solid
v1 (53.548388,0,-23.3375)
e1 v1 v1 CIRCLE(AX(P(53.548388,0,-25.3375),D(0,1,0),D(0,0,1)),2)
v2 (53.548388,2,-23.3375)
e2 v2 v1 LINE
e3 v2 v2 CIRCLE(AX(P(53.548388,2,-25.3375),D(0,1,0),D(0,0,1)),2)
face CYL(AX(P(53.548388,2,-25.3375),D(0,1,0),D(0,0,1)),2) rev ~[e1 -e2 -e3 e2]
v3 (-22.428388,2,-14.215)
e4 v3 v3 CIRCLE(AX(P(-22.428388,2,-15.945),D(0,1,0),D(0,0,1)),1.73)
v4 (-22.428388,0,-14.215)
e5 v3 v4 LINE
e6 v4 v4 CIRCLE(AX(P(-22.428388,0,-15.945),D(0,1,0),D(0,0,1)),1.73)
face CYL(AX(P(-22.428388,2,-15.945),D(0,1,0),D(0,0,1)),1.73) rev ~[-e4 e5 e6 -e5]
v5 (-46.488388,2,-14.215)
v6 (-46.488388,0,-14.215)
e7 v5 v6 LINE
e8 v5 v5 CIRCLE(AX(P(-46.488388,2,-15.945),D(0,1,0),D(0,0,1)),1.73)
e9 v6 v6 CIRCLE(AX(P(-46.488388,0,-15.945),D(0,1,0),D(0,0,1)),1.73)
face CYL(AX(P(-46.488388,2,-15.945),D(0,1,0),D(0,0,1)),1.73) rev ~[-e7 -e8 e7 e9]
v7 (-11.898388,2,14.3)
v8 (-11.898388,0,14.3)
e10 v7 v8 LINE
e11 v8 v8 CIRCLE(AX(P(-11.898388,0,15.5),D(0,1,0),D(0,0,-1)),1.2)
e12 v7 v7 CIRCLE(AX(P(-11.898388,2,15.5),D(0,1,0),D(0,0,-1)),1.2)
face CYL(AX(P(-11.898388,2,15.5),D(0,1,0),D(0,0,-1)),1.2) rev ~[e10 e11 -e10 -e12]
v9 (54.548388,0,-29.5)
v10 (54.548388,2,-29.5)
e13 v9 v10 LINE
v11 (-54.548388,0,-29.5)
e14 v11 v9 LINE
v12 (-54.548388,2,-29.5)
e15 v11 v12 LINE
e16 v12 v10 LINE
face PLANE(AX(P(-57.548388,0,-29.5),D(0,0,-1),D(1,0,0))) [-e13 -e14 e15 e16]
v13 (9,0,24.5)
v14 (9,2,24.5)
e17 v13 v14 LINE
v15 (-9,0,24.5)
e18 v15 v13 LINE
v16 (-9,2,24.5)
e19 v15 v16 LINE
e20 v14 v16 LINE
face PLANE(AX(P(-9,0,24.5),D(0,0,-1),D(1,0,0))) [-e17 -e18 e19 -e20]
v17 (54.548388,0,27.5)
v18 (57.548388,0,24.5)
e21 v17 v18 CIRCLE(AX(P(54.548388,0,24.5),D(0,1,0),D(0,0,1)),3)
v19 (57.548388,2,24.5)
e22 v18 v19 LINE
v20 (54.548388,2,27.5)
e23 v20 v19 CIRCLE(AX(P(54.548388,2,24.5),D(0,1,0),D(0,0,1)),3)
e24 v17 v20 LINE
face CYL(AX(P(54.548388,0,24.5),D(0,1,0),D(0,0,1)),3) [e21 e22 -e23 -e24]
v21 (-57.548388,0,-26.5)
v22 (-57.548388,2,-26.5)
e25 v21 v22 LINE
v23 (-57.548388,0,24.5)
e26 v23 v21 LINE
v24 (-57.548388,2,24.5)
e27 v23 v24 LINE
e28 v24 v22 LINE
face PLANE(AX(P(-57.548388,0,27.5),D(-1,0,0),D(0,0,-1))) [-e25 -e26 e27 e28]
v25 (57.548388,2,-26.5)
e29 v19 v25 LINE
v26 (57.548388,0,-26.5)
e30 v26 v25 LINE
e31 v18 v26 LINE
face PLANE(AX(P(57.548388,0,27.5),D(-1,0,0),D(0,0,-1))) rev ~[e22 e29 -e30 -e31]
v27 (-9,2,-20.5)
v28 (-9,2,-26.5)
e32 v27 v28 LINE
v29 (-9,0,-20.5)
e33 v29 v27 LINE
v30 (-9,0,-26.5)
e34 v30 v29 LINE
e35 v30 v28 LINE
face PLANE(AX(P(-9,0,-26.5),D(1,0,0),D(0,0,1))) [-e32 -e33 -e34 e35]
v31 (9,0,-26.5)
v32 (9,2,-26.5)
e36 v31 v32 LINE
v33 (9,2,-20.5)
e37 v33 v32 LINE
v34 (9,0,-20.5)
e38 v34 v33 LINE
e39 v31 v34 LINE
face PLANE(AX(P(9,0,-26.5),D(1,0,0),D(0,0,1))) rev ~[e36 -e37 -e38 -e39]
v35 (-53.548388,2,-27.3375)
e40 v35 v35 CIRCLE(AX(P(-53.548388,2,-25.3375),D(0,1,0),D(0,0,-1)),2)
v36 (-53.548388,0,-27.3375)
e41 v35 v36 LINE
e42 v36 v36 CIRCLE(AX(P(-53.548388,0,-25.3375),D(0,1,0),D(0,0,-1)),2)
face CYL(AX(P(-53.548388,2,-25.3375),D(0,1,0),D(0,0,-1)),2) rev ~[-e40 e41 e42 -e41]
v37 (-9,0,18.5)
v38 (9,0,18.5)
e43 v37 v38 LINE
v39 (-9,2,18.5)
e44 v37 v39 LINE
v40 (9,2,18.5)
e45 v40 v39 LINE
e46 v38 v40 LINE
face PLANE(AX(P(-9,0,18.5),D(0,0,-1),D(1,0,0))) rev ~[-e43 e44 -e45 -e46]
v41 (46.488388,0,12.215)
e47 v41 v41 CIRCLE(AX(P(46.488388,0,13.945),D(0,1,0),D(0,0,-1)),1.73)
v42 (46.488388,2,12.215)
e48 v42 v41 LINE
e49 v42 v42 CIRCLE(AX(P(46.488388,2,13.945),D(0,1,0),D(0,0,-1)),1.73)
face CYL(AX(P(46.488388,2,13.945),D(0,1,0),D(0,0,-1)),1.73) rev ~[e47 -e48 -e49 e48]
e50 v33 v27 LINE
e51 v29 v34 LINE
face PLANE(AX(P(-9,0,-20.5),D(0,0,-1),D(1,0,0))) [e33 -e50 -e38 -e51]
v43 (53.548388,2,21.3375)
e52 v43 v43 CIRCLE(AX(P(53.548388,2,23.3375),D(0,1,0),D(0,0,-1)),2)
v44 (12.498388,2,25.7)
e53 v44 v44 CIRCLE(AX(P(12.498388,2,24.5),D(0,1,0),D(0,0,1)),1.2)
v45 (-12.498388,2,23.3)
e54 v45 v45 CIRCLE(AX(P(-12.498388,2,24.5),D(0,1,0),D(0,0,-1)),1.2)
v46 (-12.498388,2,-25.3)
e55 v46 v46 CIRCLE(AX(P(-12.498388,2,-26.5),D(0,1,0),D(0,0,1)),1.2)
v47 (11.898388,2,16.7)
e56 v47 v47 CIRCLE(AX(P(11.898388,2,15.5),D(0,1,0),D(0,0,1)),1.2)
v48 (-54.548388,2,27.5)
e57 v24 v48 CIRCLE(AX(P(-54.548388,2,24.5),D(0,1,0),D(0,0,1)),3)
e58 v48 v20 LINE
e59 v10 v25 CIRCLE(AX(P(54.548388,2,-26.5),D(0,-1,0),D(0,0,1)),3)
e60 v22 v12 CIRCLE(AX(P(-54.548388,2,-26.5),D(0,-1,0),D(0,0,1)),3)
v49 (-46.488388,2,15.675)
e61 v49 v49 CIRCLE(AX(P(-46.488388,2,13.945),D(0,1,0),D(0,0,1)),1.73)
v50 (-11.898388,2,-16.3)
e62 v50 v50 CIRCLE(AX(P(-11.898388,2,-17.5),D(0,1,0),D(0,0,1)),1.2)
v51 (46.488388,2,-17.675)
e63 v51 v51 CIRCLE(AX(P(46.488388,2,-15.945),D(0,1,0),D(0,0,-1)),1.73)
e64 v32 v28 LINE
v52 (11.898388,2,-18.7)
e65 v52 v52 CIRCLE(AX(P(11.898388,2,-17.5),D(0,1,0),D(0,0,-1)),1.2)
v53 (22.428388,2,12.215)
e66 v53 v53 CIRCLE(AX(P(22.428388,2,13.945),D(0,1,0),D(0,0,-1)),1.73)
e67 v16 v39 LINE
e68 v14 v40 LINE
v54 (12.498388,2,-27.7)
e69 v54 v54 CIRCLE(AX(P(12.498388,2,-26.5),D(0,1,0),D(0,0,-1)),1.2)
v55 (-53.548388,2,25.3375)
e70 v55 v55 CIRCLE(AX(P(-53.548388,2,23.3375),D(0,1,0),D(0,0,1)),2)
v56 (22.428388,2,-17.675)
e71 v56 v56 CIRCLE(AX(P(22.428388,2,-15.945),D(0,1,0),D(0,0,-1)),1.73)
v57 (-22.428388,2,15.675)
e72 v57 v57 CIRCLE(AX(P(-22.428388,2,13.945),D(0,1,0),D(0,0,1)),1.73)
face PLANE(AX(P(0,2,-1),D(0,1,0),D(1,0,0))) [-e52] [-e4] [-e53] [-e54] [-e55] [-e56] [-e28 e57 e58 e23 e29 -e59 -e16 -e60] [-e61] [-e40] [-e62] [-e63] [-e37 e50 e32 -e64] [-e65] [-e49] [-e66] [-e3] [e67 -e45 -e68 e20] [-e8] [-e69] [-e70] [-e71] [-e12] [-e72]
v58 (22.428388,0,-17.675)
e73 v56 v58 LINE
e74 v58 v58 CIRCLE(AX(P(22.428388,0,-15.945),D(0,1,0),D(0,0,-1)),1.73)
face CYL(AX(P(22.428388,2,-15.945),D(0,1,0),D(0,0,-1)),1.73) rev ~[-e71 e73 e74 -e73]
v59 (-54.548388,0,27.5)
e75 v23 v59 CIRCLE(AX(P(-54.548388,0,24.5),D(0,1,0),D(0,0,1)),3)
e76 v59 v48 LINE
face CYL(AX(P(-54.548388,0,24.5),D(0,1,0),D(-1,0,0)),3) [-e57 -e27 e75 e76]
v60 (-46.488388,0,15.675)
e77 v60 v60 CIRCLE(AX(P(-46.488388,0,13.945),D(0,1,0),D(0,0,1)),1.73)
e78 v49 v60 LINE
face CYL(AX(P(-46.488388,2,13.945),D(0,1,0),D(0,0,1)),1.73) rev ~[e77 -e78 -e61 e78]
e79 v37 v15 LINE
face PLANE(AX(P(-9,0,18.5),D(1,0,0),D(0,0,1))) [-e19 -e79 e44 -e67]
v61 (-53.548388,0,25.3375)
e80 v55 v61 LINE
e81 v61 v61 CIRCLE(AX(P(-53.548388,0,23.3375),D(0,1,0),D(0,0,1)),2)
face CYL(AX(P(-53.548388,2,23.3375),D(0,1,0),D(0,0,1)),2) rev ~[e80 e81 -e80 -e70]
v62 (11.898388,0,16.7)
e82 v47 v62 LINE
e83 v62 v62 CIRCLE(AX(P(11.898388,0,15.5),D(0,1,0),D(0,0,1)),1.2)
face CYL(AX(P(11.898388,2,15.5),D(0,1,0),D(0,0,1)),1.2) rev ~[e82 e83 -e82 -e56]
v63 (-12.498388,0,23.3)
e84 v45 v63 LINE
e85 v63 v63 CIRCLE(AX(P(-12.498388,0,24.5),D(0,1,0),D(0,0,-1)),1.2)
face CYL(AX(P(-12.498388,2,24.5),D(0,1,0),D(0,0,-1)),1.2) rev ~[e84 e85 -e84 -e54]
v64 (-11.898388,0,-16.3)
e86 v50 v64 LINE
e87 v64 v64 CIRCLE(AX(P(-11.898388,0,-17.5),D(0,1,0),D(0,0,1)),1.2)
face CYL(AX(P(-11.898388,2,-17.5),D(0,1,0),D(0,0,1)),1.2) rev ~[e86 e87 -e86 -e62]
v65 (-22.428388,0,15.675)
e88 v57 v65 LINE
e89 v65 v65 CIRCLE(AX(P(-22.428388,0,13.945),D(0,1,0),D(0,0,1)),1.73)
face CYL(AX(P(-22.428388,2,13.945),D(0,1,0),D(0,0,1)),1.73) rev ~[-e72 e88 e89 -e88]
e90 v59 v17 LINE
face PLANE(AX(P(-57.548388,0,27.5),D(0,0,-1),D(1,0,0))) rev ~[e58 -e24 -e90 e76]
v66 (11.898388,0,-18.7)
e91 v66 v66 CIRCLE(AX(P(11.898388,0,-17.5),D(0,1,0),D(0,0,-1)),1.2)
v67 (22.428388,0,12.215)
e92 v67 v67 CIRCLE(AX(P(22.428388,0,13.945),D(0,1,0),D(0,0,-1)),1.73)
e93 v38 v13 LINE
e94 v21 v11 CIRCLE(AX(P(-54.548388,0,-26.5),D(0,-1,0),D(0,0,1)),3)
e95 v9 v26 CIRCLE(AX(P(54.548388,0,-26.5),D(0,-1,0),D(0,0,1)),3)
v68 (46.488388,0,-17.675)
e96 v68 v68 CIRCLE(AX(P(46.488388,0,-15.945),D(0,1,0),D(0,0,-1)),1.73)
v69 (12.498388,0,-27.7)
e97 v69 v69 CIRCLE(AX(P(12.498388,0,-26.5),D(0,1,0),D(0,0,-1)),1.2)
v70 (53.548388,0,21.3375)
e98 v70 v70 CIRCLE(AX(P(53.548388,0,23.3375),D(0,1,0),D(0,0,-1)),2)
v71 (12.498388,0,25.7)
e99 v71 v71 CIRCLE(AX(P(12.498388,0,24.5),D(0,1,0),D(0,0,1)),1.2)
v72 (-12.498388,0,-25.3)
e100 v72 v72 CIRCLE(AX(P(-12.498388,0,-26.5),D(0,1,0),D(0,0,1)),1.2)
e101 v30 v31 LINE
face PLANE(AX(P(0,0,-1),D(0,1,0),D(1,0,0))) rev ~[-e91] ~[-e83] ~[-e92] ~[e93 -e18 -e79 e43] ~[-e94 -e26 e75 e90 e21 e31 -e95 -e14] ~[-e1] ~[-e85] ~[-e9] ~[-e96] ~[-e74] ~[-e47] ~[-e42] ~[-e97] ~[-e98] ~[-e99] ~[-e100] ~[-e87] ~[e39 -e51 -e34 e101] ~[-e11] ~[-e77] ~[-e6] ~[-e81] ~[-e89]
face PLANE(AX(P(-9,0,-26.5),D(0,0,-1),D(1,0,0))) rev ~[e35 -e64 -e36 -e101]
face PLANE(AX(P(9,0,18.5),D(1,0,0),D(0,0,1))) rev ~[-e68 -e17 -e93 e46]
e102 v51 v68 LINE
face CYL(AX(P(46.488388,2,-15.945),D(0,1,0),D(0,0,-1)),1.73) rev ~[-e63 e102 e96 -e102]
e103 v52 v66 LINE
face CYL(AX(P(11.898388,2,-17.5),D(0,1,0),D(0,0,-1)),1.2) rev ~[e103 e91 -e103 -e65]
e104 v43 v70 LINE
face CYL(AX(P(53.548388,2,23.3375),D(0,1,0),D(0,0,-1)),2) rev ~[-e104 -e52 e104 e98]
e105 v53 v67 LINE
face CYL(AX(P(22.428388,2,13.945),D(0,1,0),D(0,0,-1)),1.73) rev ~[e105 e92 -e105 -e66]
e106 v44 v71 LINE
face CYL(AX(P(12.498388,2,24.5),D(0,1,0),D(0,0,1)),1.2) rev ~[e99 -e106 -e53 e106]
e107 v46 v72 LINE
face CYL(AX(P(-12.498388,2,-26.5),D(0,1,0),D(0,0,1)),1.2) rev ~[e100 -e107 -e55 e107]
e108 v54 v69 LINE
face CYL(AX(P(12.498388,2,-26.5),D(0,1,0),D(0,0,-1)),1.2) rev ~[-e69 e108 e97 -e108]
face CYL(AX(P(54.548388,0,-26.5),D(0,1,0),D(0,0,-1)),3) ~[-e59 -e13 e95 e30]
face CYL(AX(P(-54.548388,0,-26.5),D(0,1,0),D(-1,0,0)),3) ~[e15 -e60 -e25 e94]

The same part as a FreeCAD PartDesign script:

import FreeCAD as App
import Part
import Sketcher
from FreeCAD import Vector
Q = App.Units.Quantity


def edges_at(feature, points):
    """Names of the edges that pass closest to the given points."""
    edges = feature.Shape.Edges
    near = lambda p: min(range(len(edges)), key=lambda i: edges[i].distToShape(Part.Vertex(*p))[0])
    return sorted({f"Edge{near(p) + 1}" for p in points})

doc = App.newDocument("Part")
body = doc.addObject("PartDesign::Body", "Body")

sketch1 = body.newObject("Sketcher::SketchObject", "Sketch")
sketch1.AttachmentSupport = (doc.getObject("XZ_Plane"), [""])
sketch1.MapMode = "FlatFace"
sketch1.addGeometry(Part.LineSegment(Vector(-58, -30, 0), Vector(-58, 28, 0)), False)
sketch1.addGeometry(Part.LineSegment(Vector(-58, 28, 0), Vector(58, 28, 0)), False)
sketch1.addGeometry(Part.LineSegment(Vector(58, 28, 0), Vector(58, -30, 0)), False)
sketch1.addGeometry(Part.LineSegment(Vector(58, -30, 0), Vector(-58, -30, 0)), False)
sketch1.addConstraint(Sketcher.Constraint("Coincident", 0, 2, 1, 1))
sketch1.addConstraint(Sketcher.Constraint("Coincident", 1, 2, 2, 1))
sketch1.addConstraint(Sketcher.Constraint("Coincident", 2, 2, 3, 1))
sketch1.addConstraint(Sketcher.Constraint("Coincident", 3, 2, 0, 1))
sketch1.addConstraint(Sketcher.Constraint("Vertical", 0))
sketch1.addConstraint(Sketcher.Constraint("Horizontal", 1))
sketch1.addConstraint(Sketcher.Constraint("Vertical", 2))
sketch1.addConstraint(Sketcher.Constraint("Horizontal", 3))
sketch1.addConstraint(Sketcher.Constraint("DistanceY", 0, 1, 0, 2, Q("57 mm")))
sketch1.addConstraint(Sketcher.Constraint("DistanceY", -1, 1, 0, 2, Q("27.5 mm")))
sketch1.addConstraint(Sketcher.Constraint("DistanceX", 1, 1, 1, 2, Q("115.096777 mm")))
sketch1.addConstraint(Sketcher.Constraint("DistanceX", 0, 2, -1, 1, Q("57.548388 mm")))
pad1 = body.newObject("PartDesign::Pad", "Pad")
pad1.Profile = sketch1
pad1.Length = 2
pad1.Reversed = True

sketch2 = body.newObject("Sketcher::SketchObject", "Sketch001")
sketch2.AttachmentSupport = (doc.getObject("XZ_Plane"), [""])
sketch2.MapMode = "FlatFace"
sketch2.AttachmentOffset = App.Placement(Vector(0, 0, -2), App.Rotation())
sketch2.addGeometry(Part.Circle(Vector(-46.5, -15.9, 0), Vector(0, 0, 1), 1.7), False)
sketch2.addGeometry(Part.Circle(Vector(-22.4, -15.9, 0), Vector(0, 0, 1), 1.7), False)
sketch2.addGeometry(Part.Circle(Vector(-22.4, 13.9, 0), Vector(0, 0, 1), 1.7), False)
sketch2.addGeometry(Part.Circle(Vector(22.4, 13.9, 0), Vector(0, 0, 1), 1.7), False)
sketch2.addGeometry(Part.Circle(Vector(22.4, -15.9, 0), Vector(0, 0, 1), 1.7), False)
sketch2.addGeometry(Part.Circle(Vector(46.5, -15.9, 0), Vector(0, 0, 1), 1.7), False)
sketch2.addGeometry(Part.Circle(Vector(-46.5, 13.9, 0), Vector(0, 0, 1), 1.7), False)
sketch2.addGeometry(Part.Circle(Vector(46.5, 13.9, 0), Vector(0, 0, 1), 1.7), False)
sketch2.addConstraint(Sketcher.Constraint("Equal", 0, 1))
sketch2.addConstraint(Sketcher.Constraint("Equal", 1, 2))
sketch2.addConstraint(Sketcher.Constraint("Equal", 2, 3))
sketch2.addConstraint(Sketcher.Constraint("Equal", 3, 4))
sketch2.addConstraint(Sketcher.Constraint("Equal", 4, 5))
sketch2.addConstraint(Sketcher.Constraint("Equal", 5, 6))
sketch2.addConstraint(Sketcher.Constraint("Equal", 6, 7))
sketch2.addConstraint(Sketcher.Constraint("Symmetric", 2, 3, 3, 3, -2))
sketch2.addConstraint(Sketcher.Constraint("Symmetric", 1, 3, 4, 3, -2))
sketch2.addConstraint(Sketcher.Constraint("Symmetric", 0, 3, 5, 3, -2))
sketch2.addConstraint(Sketcher.Constraint("Symmetric", 6, 3, 7, 3, -2))
sketch2.addConstraint(Sketcher.Constraint("Horizontal", 0, 3, 1, 3))
sketch2.addConstraint(Sketcher.Constraint("Horizontal", 3, 3, 6, 3))
sketch2.addConstraint(Sketcher.Constraint("Vertical", 1, 3, 2, 3))
sketch2.addConstraint(Sketcher.Constraint("Vertical", 0, 3, 6, 3))
sketch2.addConstraint(Sketcher.Constraint("Diameter", 0, Q("3.46 mm")))
sketch2.addConstraint(Sketcher.Constraint("DistanceX", 0, 3, 1, 3, Q("24.06 mm")))
sketch2.addConstraint(Sketcher.Constraint("DistanceY", 1, 3, 2, 3, Q("29.89 mm")))
sketch2.addConstraint(Sketcher.Constraint("DistanceY", 0, 3, -1, 1, Q("15.945 mm")))
sketch2.addConstraint(Sketcher.Constraint("DistanceX", 0, 3, -1, 1, Q("46.488388 mm")))
pocket1 = body.newObject("PartDesign::Pocket", "Pocket")
pocket1.Profile = sketch2
pocket1.Type = "ThroughAll"
pocket1.Reversed = True

sketch3 = body.newObject("Sketcher::SketchObject", "Sketch002")
sketch3.AttachmentSupport = (doc.getObject("XZ_Plane"), [""])
sketch3.MapMode = "FlatFace"
sketch3.addGeometry(Part.LineSegment(Vector(-9, 24, 0), Vector(-9, 18, 0)), False)
sketch3.addGeometry(Part.LineSegment(Vector(-9, 18, 0), Vector(9, 18, 0)), False)
sketch3.addGeometry(Part.LineSegment(Vector(9, 18, 0), Vector(9, 24, 0)), False)
sketch3.addGeometry(Part.LineSegment(Vector(9, 24, 0), Vector(-9, 24, 0)), False)
sketch3.addGeometry(Part.LineSegment(Vector(-9, -20, 0), Vector(-9, -26, 0)), False)
sketch3.addGeometry(Part.LineSegment(Vector(-9, -26, 0), Vector(9, -26, 0)), False)
sketch3.addGeometry(Part.LineSegment(Vector(9, -26, 0), Vector(9, -20, 0)), False)
sketch3.addGeometry(Part.LineSegment(Vector(9, -20, 0), Vector(-9, -20, 0)), False)
sketch3.addConstraint(Sketcher.Constraint("Coincident", 0, 2, 1, 1))
sketch3.addConstraint(Sketcher.Constraint("Coincident", 1, 2, 2, 1))
sketch3.addConstraint(Sketcher.Constraint("Coincident", 2, 2, 3, 1))
sketch3.addConstraint(Sketcher.Constraint("Coincident", 3, 2, 0, 1))
sketch3.addConstraint(Sketcher.Constraint("Coincident", 4, 2, 5, 1))
sketch3.addConstraint(Sketcher.Constraint("Coincident", 5, 2, 6, 1))
sketch3.addConstraint(Sketcher.Constraint("Coincident", 6, 2, 7, 1))
sketch3.addConstraint(Sketcher.Constraint("Coincident", 7, 2, 4, 1))
sketch3.addConstraint(Sketcher.Constraint("Vertical", 0))
sketch3.addConstraint(Sketcher.Constraint("Horizontal", 1))
sketch3.addConstraint(Sketcher.Constraint("Vertical", 2))
sketch3.addConstraint(Sketcher.Constraint("Horizontal", 3))
sketch3.addConstraint(Sketcher.Constraint("Vertical", 4))
sketch3.addConstraint(Sketcher.Constraint("Horizontal", 5))
sketch3.addConstraint(Sketcher.Constraint("Vertical", 6))
sketch3.addConstraint(Sketcher.Constraint("Horizontal", 7))
sketch3.addConstraint(Sketcher.Constraint("Vertical", 3, 2, 4, 2))
sketch3.addConstraint(Sketcher.Constraint("Vertical", 2, 2, 5, 2))
sketch3.addConstraint(Sketcher.Constraint("Equal", 2, 4))
sketch3.addConstraint(Sketcher.Constraint("DistanceX", 1, 1, 1, 2, Q("18 mm")))
sketch3.addConstraint(Sketcher.Constraint("DistanceY", 0, 2, 0, 1, Q("6 mm")))
sketch3.addConstraint(Sketcher.Constraint("DistanceX", 0, 2, -1, 1, Q("9 mm")))
sketch3.addConstraint(Sketcher.Constraint("DistanceY", 4, 2, 0, 2, Q("45 mm")))
sketch3.addConstraint(Sketcher.Constraint("DistanceY", -1, 1, 0, 2, Q("18.5 mm")))
pocket2 = body.newObject("PartDesign::Pocket", "Pocket001")
pocket2.Profile = sketch3
pocket2.Type = "ThroughAll"

sketch4 = body.newObject("Sketcher::SketchObject", "Sketch003")
sketch4.AttachmentSupport = (doc.getObject("XZ_Plane"), [""])
sketch4.MapMode = "FlatFace"
sketch4.AttachmentOffset = App.Placement(Vector(0, 0, -2), App.Rotation())
sketch4.addGeometry(Part.Circle(Vector(53.5, -25.3, 0), Vector(0, 0, 1), 2), False)
sketch4.addGeometry(Part.Circle(Vector(53.5, 23.3, 0), Vector(0, 0, 1), 2), False)
sketch4.addGeometry(Part.Circle(Vector(-53.5, 23.3, 0), Vector(0, 0, 1), 2), False)
sketch4.addGeometry(Part.Circle(Vector(-53.5, -25.3, 0), Vector(0, 0, 1), 2), False)
sketch4.addConstraint(Sketcher.Constraint("Equal", 0, 1))
sketch4.addConstraint(Sketcher.Constraint("Equal", 1, 2))
sketch4.addConstraint(Sketcher.Constraint("Equal", 2, 3))
sketch4.addConstraint(Sketcher.Constraint("Symmetric", 1, 3, 2, 3, -2))
sketch4.addConstraint(Sketcher.Constraint("Symmetric", 0, 3, 3, 3, -2))
sketch4.addConstraint(Sketcher.Constraint("Vertical", 0, 3, 1, 3))
sketch4.addConstraint(Sketcher.Constraint("Diameter", 0, Q("4 mm")))
sketch4.addConstraint(Sketcher.Constraint("DistanceY", 0, 3, 1, 3, Q("48.675 mm")))
sketch4.addConstraint(Sketcher.Constraint("DistanceY", 0, 3, -1, 1, Q("25.3375 mm")))
sketch4.addConstraint(Sketcher.Constraint("DistanceX", -1, 1, 0, 3, Q("53.548388 mm")))
pocket3 = body.newObject("PartDesign::Pocket", "Pocket002")
pocket3.Profile = sketch4
pocket3.Type = "ThroughAll"
pocket3.Reversed = True
doc.recompute()

fillet = body.newObject("PartDesign::Fillet", "Fillet")
fillet.Base = (pocket3, edges_at(pocket3, [
    (-57.548, 1, -29.5),
    (57.548, 1, -29.5),
    (57.548, 1, 27.5),
    (-57.548, 1, 27.5),
]))
fillet.Radius = 3

sketch5 = body.newObject("Sketcher::SketchObject", "Sketch004")
sketch5.AttachmentSupport = (doc.getObject("XZ_Plane"), [""])
sketch5.MapMode = "FlatFace"
sketch5.AttachmentOffset = App.Placement(Vector(0, 0, -2), App.Rotation())
sketch5.addGeometry(Part.Circle(Vector(-12.5, -26.5, 0), Vector(0, 0, 1), 1.2), False)
sketch5.addGeometry(Part.Circle(Vector(12.5, -26.5, 0), Vector(0, 0, 1), 1.2), False)
sketch5.addGeometry(Part.Circle(Vector(12.5, 24.5, 0), Vector(0, 0, 1), 1.2), False)
sketch5.addGeometry(Part.Circle(Vector(-12.5, 24.5, 0), Vector(0, 0, 1), 1.2), False)
sketch5.addGeometry(Part.Circle(Vector(-11.9, -17.5, 0), Vector(0, 0, 1), 1.2), False)
sketch5.addGeometry(Part.Circle(Vector(11.9, -17.5, 0), Vector(0, 0, 1), 1.2), False)
sketch5.addGeometry(Part.Circle(Vector(11.9, 15.5, 0), Vector(0, 0, 1), 1.2), False)
sketch5.addGeometry(Part.Circle(Vector(-11.9, 15.5, 0), Vector(0, 0, 1), 1.2), False)
sketch5.addConstraint(Sketcher.Constraint("Equal", 0, 1))
sketch5.addConstraint(Sketcher.Constraint("Equal", 1, 2))
sketch5.addConstraint(Sketcher.Constraint("Equal", 2, 3))
sketch5.addConstraint(Sketcher.Constraint("Equal", 3, 4))
sketch5.addConstraint(Sketcher.Constraint("Equal", 4, 5))
sketch5.addConstraint(Sketcher.Constraint("Equal", 5, 6))
sketch5.addConstraint(Sketcher.Constraint("Equal", 6, 7))
sketch5.addConstraint(Sketcher.Constraint("Symmetric", 0, 3, 1, 3, -2))
sketch5.addConstraint(Sketcher.Constraint("Symmetric", 2, 3, 3, 3, -2))
sketch5.addConstraint(Sketcher.Constraint("Symmetric", 4, 3, 5, 3, -2))
sketch5.addConstraint(Sketcher.Constraint("Symmetric", 6, 3, 7, 3, -2))
sketch5.addConstraint(Sketcher.Constraint("Vertical", 1, 3, 2, 3))
sketch5.addConstraint(Sketcher.Constraint("Vertical", 5, 3, 6, 3))
sketch5.addConstraint(Sketcher.Constraint("Diameter", 0, Q("2.4 mm")))
sketch5.addConstraint(Sketcher.Constraint("DistanceY", 1, 3, 2, 3, Q("51 mm")))
sketch5.addConstraint(Sketcher.Constraint("DistanceY", 0, 3, 4, 3, Q("9 mm")))
sketch5.addConstraint(Sketcher.Constraint("DistanceY", 6, 3, 2, 3, Q("9 mm")))
sketch5.addConstraint(Sketcher.Constraint("DistanceY", 0, 3, -1, 1, Q("26.5 mm")))
sketch5.addConstraint(Sketcher.Constraint("DistanceX", 0, 3, 4, 3, Q("0.6 mm")))
sketch5.addConstraint(Sketcher.Constraint("DistanceX", 0, 3, -1, 1, Q("12.498388 mm")))
pocket4 = body.newObject("PartDesign::Pocket", "Pocket003")
pocket4.Profile = sketch5
pocket4.Type = "ThroughAll"
pocket4.Reversed = True

doc.recompute()
